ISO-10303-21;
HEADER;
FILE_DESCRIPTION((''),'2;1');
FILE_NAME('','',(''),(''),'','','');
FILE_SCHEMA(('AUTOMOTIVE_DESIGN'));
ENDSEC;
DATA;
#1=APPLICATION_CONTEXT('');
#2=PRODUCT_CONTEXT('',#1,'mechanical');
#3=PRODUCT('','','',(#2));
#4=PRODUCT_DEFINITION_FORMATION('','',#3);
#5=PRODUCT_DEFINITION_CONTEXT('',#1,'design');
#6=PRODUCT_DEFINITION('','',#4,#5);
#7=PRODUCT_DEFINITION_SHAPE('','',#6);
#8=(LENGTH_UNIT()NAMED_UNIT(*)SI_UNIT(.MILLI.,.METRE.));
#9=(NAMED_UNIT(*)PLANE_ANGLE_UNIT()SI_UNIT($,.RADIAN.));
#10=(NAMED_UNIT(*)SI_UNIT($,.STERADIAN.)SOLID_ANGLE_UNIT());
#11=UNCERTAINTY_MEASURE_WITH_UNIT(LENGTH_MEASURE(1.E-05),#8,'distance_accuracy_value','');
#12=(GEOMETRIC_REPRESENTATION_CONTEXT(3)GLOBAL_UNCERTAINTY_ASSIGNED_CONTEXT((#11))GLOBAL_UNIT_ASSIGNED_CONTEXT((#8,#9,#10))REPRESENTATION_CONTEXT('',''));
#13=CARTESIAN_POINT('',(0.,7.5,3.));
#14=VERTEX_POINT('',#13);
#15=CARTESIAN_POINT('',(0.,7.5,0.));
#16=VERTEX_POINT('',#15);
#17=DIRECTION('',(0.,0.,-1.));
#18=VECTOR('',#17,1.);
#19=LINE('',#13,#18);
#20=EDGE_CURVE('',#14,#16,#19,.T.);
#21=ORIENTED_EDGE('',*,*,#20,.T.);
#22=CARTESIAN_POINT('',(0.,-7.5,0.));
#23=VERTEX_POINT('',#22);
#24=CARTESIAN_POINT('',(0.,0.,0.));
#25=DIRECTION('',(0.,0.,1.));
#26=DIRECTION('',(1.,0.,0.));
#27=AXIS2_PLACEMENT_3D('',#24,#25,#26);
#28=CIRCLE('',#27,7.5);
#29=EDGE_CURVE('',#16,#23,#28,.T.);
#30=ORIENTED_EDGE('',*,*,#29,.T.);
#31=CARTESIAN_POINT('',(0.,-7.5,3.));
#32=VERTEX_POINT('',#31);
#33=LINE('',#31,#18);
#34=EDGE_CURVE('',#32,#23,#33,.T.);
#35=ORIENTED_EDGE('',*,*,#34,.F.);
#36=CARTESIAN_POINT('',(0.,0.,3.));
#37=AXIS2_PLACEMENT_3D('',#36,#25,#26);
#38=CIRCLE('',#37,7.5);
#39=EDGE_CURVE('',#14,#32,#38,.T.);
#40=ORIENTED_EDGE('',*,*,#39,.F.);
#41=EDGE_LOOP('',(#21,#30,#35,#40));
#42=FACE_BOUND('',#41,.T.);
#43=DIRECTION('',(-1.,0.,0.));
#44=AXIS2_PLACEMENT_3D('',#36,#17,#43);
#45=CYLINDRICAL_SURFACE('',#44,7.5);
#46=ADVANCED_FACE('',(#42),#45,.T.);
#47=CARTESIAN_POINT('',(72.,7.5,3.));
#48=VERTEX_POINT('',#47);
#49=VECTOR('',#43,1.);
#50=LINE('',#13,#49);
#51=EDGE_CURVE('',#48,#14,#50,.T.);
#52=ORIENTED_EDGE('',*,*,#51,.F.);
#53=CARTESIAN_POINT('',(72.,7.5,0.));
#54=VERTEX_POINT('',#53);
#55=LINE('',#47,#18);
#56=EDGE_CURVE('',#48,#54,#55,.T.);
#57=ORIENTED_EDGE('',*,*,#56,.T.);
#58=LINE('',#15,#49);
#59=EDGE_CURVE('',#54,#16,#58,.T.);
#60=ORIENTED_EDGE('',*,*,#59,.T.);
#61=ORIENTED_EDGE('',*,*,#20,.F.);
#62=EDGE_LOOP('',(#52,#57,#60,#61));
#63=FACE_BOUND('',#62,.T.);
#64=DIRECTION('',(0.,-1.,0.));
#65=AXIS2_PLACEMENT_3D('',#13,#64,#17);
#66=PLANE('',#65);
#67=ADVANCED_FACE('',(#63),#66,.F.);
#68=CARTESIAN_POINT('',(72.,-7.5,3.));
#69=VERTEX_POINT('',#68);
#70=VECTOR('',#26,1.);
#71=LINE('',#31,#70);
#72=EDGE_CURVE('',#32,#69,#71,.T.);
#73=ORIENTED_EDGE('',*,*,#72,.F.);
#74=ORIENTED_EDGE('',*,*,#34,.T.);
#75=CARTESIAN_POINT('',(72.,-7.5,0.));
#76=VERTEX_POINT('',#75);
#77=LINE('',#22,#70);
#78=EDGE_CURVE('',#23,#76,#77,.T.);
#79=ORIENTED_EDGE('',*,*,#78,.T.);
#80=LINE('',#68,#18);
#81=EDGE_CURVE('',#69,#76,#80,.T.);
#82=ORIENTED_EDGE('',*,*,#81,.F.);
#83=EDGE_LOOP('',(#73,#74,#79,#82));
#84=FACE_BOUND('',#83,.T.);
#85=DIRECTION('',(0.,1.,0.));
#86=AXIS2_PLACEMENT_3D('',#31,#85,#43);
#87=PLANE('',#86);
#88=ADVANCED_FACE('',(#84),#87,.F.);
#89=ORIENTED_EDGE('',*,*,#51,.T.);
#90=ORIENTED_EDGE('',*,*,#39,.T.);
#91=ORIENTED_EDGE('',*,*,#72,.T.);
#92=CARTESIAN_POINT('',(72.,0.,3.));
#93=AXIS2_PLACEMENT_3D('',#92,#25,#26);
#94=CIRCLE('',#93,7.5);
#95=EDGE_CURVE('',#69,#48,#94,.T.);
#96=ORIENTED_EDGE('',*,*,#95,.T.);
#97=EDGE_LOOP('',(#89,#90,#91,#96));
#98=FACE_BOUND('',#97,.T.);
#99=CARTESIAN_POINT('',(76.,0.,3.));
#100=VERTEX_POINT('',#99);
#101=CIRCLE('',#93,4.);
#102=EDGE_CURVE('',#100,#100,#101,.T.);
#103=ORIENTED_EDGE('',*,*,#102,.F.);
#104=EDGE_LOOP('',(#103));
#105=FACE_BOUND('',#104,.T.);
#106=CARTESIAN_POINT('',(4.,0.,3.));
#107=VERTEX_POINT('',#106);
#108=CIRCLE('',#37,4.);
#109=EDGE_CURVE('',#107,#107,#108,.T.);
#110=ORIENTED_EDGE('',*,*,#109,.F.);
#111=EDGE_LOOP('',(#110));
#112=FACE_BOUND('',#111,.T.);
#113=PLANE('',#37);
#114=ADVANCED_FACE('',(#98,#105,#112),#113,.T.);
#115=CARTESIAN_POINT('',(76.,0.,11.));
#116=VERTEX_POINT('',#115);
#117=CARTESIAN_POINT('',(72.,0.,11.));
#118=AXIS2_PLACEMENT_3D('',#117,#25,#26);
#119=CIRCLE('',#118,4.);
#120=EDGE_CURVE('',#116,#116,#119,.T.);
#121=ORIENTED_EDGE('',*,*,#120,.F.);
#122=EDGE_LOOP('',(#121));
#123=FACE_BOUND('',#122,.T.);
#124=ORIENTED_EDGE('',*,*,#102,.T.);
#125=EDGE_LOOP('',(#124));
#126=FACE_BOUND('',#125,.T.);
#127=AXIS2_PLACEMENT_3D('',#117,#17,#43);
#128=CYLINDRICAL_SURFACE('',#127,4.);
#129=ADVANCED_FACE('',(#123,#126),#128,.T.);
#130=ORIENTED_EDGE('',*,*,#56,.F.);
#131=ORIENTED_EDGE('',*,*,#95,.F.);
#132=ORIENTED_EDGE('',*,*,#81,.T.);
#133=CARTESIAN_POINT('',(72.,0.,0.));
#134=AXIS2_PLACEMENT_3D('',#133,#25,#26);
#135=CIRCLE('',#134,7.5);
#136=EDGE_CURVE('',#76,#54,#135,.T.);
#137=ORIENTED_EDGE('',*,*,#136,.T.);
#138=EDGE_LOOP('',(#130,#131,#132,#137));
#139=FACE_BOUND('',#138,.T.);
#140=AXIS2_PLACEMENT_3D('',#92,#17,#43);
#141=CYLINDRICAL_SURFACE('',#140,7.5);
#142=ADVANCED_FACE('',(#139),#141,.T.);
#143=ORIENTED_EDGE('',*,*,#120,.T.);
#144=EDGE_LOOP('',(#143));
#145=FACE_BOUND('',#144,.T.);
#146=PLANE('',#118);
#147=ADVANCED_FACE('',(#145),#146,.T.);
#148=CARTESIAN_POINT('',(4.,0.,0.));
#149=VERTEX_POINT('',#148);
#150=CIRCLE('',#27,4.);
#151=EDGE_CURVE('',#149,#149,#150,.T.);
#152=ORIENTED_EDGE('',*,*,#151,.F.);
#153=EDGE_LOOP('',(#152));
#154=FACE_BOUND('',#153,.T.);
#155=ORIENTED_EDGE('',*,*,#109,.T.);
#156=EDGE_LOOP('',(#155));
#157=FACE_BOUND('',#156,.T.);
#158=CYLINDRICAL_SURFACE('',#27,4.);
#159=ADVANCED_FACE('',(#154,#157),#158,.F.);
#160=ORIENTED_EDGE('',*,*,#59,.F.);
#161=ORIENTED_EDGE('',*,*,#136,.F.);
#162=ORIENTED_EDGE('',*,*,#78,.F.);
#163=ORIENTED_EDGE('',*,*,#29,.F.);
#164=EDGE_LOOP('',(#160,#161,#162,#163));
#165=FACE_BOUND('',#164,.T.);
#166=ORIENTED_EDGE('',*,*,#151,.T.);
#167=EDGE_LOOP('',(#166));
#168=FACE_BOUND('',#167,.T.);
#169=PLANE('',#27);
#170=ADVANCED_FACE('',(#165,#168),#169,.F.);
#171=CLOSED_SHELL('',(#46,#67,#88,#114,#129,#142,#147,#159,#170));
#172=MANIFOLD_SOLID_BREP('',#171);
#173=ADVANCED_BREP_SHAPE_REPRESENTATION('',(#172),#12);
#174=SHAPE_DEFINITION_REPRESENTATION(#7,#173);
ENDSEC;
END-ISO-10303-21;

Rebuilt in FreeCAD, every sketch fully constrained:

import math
import FreeCAD as App
import Part
import Sketcher

V = App.Vector
Q = App.Units.Quantity

doc = App.newDocument("Part")
params = doc.addObject("Spreadsheet::Sheet", "Params")
for row, (alias, value) in enumerate([
    ("sketch1_radius", "7.5 mm"),
    ("sketch1_width", "72 mm"),
    ("pad1_length", "3 mm"),
    ("sketch2_diameter", "8 mm"),
    ("sketch3_diameter", "8 mm"),
    ("pad2_length", "8 mm"),
], start=1):
    params.set(f"A{row}", alias)
    params.set(f"B{row}", "=" + value)
    params.setAlias(f"B{row}", alias)

body = doc.addObject("PartDesign::Body", "Body")

# Sketch on XY plane
sketch1 = body.newObject("Sketcher::SketchObject", "Sketch")
sketch1.AttachmentSupport = (doc.getObject("XY_Plane"), [""])
sketch1.MapMode = "FlatFace"
sketch1.addGeometry([
    Part.LineSegment(V(72, 8, 0), V(0, 8, 0)),
    Part.ArcOfCircle(Part.Circle(V(0, 0, 0), V(0, 0, 1), 8), math.radians(90), math.radians(270)),
    Part.LineSegment(V(0, -8, 0), V(72, -8, 0)),
    Part.ArcOfCircle(Part.Circle(V(72, 0, 0), V(0, 0, 1), 8), math.radians(-90), math.radians(90)),
], False)
sketch1.addConstraint([
    Sketcher.Constraint("Tangent", 0, 2, 1, 1),
    Sketcher.Constraint("Tangent", 1, 2, 2, 1),
    Sketcher.Constraint("Tangent", 2, 2, 3, 1),
    Sketcher.Constraint("Tangent", 3, 2, 0, 1),
    Sketcher.Constraint("Horizontal", 0),
    Sketcher.Constraint("Horizontal", 2),
    Sketcher.Constraint("Coincident", 1, 3, -1, 1),
    Sketcher.Constraint("Radius", 1, Q("7.5 mm")),
    Sketcher.Constraint("DistanceX", 0, 2, 0, 1, Q("72 mm")),
])
sketch1.setExpression("Constraints[7]", "Params.sketch1_radius")
sketch1.setExpression("Constraints[8]", "Params.sketch1_width")
pad1 = body.newObject("PartDesign::Pad", "Pad")
pad1.Profile = sketch1
pad1.setExpression("Length", "Params.pad1_length")

# Sketch on XY plane
sketch2 = body.newObject("Sketcher::SketchObject", "Sketch001")
sketch2.AttachmentSupport = (doc.getObject("XY_Plane"), [""])
sketch2.MapMode = "FlatFace"
sketch2.AttachmentOffset = App.Placement(V(0, 0, 3), App.Rotation())
sketch2.addGeometry(Part.Circle(V(0, 0, 0), V(0, 0, 1), 4), False)
sketch2.addConstraint([
    Sketcher.Constraint("Coincident", 0, 3, -1, 1),
    Sketcher.Constraint("Diameter", 0, Q("8 mm")),
])
sketch2.setExpression("Constraints[1]", "Params.sketch2_diameter")
pocket1 = body.newObject("PartDesign::Pocket", "Pocket")
pocket1.Profile = sketch2
pocket1.Type = "ThroughAll"

# Sketch on XY plane
sketch3 = body.newObject("Sketcher::SketchObject", "Sketch002")
sketch3.AttachmentSupport = (doc.getObject("XY_Plane"), [""])
sketch3.MapMode = "FlatFace"
sketch3.AttachmentOffset = App.Placement(V(0, 0, 3), App.Rotation())
sketch3.addGeometry(Part.Circle(V(72, 0, 0), V(0, 0, 1), 4), False)
sketch3.addConstraint([
    Sketcher.Constraint("PointOnObject", 0, 3, -1),
    Sketcher.Constraint("Diameter", 0, Q("8 mm")),
    Sketcher.Constraint("DistanceX", -1, 1, 0, 3, Q("72 mm")),
])
sketch3.setExpression("Constraints[1]", "Params.sketch3_diameter")
pad2 = body.newObject("PartDesign::Pad", "Pad001")
pad2.Profile = sketch3
pad2.setExpression("Length", "Params.pad2_length")

doc.recompute()
